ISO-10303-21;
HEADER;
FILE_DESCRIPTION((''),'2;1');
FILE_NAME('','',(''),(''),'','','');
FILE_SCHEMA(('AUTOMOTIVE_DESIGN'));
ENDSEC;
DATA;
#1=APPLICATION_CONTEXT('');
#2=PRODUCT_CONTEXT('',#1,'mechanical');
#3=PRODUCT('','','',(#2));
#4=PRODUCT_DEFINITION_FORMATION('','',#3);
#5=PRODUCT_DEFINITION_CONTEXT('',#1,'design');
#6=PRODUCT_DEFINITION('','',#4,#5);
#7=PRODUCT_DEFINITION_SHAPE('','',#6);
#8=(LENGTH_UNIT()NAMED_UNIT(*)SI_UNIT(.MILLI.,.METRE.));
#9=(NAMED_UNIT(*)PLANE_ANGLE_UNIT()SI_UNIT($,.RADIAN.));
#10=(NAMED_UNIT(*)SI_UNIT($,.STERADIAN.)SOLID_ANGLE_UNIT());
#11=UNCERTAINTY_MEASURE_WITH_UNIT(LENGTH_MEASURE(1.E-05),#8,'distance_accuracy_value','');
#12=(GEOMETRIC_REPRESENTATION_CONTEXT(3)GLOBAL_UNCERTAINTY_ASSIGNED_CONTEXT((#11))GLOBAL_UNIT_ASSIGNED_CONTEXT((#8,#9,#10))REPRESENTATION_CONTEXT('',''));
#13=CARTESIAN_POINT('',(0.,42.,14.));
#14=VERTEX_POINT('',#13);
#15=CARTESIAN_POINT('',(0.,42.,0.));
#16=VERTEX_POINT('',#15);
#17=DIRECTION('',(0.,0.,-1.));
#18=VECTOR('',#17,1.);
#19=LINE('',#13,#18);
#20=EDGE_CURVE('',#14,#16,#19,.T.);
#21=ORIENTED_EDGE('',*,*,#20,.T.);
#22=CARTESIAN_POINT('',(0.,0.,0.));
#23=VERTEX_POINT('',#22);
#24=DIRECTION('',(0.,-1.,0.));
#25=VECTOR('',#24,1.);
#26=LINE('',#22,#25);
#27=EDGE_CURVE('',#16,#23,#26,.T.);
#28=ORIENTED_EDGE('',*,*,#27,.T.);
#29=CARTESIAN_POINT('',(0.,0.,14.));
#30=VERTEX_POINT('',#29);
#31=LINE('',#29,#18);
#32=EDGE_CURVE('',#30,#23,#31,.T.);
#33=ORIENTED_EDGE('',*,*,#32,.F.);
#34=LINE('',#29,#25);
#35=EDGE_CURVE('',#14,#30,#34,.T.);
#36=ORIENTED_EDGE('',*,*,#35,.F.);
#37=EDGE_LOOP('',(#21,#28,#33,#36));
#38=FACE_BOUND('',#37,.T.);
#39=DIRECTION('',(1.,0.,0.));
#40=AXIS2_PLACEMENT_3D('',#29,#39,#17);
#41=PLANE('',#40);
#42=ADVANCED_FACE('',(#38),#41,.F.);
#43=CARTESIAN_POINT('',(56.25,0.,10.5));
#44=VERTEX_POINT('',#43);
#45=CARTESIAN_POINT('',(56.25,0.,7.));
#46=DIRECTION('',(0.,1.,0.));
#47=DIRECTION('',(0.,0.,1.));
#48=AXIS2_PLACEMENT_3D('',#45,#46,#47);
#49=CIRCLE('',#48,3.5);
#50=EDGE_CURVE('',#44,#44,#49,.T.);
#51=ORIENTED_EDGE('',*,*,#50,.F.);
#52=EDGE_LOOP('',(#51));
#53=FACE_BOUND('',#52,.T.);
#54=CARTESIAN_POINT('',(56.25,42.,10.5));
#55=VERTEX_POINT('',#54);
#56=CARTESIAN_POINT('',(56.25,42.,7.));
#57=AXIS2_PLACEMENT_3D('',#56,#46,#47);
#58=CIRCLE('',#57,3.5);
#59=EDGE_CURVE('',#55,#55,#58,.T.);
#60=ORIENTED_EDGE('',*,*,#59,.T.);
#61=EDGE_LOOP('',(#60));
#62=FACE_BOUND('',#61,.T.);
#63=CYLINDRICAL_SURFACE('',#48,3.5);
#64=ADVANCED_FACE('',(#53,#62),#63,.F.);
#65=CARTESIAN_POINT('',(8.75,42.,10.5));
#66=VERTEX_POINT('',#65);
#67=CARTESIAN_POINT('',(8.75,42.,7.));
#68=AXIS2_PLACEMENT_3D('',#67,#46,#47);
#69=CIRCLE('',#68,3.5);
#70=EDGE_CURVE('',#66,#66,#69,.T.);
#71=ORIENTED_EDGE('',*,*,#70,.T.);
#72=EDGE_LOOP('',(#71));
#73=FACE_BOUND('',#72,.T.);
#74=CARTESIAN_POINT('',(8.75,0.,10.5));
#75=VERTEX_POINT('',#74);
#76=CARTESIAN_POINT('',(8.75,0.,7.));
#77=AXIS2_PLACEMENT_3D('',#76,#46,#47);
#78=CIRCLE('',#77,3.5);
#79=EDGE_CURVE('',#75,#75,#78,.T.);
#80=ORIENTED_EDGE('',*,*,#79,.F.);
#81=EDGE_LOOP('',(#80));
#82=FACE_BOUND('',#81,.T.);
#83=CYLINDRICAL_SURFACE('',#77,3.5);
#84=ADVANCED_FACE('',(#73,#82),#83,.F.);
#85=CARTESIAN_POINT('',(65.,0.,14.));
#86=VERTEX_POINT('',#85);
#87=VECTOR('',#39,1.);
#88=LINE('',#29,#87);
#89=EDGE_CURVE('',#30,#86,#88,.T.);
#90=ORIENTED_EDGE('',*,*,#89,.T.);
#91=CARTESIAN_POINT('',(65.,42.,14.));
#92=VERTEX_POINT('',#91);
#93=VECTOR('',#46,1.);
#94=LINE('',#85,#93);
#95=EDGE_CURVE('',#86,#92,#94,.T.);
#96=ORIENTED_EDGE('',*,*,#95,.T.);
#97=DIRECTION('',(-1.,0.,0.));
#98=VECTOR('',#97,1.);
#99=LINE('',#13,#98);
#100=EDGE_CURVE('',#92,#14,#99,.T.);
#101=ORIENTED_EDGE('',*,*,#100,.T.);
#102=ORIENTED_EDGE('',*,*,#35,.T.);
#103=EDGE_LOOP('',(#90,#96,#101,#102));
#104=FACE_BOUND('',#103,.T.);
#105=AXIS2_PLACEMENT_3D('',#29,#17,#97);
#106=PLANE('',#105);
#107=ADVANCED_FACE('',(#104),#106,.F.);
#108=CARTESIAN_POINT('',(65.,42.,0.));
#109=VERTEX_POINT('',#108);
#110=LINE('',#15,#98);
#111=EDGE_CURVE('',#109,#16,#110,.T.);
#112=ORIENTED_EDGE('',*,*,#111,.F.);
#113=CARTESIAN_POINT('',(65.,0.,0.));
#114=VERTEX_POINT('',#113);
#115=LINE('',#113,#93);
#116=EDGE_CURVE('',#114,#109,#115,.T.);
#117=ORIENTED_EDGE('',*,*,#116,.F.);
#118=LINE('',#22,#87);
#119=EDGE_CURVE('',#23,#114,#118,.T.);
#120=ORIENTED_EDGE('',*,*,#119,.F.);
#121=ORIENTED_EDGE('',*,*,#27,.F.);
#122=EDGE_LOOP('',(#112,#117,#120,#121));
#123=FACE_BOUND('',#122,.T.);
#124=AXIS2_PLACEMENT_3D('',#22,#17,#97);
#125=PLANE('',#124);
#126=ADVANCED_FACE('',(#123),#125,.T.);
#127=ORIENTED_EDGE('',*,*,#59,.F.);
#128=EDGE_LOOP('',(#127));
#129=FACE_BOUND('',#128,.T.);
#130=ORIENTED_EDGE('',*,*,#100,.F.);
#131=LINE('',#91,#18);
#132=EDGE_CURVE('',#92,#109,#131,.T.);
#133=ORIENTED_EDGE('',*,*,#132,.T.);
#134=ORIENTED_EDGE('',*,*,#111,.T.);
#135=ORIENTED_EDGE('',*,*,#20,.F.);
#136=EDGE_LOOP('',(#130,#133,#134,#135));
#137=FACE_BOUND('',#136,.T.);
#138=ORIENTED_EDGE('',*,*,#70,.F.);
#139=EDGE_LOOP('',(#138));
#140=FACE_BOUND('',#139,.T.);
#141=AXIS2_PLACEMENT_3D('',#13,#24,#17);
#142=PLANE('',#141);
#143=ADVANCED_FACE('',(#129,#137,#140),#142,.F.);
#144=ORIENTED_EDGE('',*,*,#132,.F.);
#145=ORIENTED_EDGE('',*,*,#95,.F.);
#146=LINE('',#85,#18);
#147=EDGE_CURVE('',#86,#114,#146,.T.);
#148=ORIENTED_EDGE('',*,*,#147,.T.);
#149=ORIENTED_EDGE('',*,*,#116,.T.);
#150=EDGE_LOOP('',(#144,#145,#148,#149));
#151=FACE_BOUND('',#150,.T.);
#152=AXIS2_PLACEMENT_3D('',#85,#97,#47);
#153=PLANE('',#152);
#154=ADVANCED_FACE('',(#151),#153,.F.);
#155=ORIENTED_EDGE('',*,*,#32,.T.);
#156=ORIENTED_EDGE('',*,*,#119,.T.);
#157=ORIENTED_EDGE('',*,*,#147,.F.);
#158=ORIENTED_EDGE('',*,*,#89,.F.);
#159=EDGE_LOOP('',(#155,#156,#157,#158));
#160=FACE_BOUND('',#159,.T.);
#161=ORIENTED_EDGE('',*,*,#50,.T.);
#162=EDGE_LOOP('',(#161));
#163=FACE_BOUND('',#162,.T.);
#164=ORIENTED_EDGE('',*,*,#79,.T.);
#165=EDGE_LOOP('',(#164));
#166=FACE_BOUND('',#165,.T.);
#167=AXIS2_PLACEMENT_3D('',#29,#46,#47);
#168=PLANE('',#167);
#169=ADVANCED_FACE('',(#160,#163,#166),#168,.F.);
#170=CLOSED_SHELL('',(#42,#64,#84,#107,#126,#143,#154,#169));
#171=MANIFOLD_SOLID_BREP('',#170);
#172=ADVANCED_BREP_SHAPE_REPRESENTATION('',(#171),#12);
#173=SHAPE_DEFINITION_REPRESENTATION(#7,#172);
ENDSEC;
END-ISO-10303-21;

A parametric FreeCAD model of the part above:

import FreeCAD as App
import Part
import Sketcher


def add_polygon(sketch, points):
    """Adds a closed chain of lines whose ends are joined by coincident constraints."""
    first, n = sketch.GeometryCount, len(points)
    for a, b in zip(points, points[1:] + points[:1]):
        sketch.addGeometry(Part.LineSegment(App.Vector(*a, 0), App.Vector(*b, 0)), False)
    for i in range(n):
        sketch.addConstraint(Sketcher.Constraint("Coincident", first + i, 2, first + (i + 1) % n, 1))

doc = App.newDocument("Part")
params = doc.addObject("Spreadsheet::Sheet", "Params")
for row, (alias, value) in enumerate([
    ("sketch1_width", "65 mm"),
    ("sketch1_height", "42 mm"),
    ("pad1_length", "14 mm"),
    ("sketch2_diameter", "7 mm"),
], start=1):
    params.set(f"A{row}", alias)
    params.set(f"B{row}", "=" + value)
    params.setAlias(f"B{row}", alias)

body = doc.addObject("PartDesign::Body", "Body")

# Sketch on XY plane
sketch1 = doc.addObject("Sketcher::SketchObject", "Sketch")
body.addObject(sketch1)
sketch1.AttachmentSupport = (doc.XY_Plane, [""])
sketch1.MapMode = "FlatFace"
add_polygon(sketch1, [(0, 42), (0, 0), (65, 0), (65, 42)])  # lines 0-3
sketch1.addConstraint(Sketcher.Constraint("Vertical", 0))
sketch1.addConstraint(Sketcher.Constraint("Horizontal", 1))
sketch1.addConstraint(Sketcher.Constraint("Vertical", 2))
sketch1.addConstraint(Sketcher.Constraint("Horizontal", 3))
sketch1.addConstraint(Sketcher.Constraint("Coincident", 0, 2, -1, 1))
sketch1.addConstraint(Sketcher.Constraint("DistanceX", 1, 1, 1, 2, 65.0))
sketch1.addConstraint(Sketcher.Constraint("DistanceY", 0, 2, 0, 1, 42.0))
sketch1.setExpression("Constraints[9]", "Params.sketch1_width")
sketch1.setExpression("Constraints[10]", "Params.sketch1_height")
pad1 = doc.addObject("PartDesign::Pad", "Pad")
body.addObject(pad1)
pad1.Profile = sketch1
pad1.setExpression("Length", "Params.pad1_length")

# Sketch on XZ plane
sketch2 = doc.addObject("Sketcher::SketchObject", "Sketch001")
body.addObject(sketch2)
sketch2.AttachmentSupport = (doc.XZ_Plane, [""])
sketch2.MapMode = "FlatFace"
sketch2.AttachmentOffset = App.Placement(App.Vector(0, 0, -42), App.Rotation())
sketch2.addGeometry(Part.Circle(App.Vector(8.8, 7, 0), App.Vector(0, 0, 1), 3.5), False)
sketch2.addGeometry(Part.Circle(App.Vector(56.2, 7, 0), App.Vector(0, 0, 1), 3.5), False)
sketch2.addConstraint(Sketcher.Constraint("Equal", 0, 1))
sketch2.addConstraint(Sketcher.Constraint("Horizontal", 0, 3, 1, 3))
sketch2.addConstraint(Sketcher.Constraint("Diameter", 0, 7.0))
sketch2.addConstraint(Sketcher.Constraint("DistanceY", -1, 1, 0, 3, 7.0))
sketch2.addConstraint(Sketcher.Constraint("DistanceX", 0, 3, 1, 3, 47.5))
sketch2.addConstraint(Sketcher.Constraint("DistanceX", -1, 1, 0, 3, 8.75))
sketch2.setExpression("Constraints[2]", "Params.sketch2_diameter")
pocket1 = doc.addObject("PartDesign::Pocket", "Pocket")
body.addObject(pocket1)
pocket1.Profile = sketch2
pocket1.Type = "ThroughAll"
pocket1.Reversed = True

doc.recompute()
